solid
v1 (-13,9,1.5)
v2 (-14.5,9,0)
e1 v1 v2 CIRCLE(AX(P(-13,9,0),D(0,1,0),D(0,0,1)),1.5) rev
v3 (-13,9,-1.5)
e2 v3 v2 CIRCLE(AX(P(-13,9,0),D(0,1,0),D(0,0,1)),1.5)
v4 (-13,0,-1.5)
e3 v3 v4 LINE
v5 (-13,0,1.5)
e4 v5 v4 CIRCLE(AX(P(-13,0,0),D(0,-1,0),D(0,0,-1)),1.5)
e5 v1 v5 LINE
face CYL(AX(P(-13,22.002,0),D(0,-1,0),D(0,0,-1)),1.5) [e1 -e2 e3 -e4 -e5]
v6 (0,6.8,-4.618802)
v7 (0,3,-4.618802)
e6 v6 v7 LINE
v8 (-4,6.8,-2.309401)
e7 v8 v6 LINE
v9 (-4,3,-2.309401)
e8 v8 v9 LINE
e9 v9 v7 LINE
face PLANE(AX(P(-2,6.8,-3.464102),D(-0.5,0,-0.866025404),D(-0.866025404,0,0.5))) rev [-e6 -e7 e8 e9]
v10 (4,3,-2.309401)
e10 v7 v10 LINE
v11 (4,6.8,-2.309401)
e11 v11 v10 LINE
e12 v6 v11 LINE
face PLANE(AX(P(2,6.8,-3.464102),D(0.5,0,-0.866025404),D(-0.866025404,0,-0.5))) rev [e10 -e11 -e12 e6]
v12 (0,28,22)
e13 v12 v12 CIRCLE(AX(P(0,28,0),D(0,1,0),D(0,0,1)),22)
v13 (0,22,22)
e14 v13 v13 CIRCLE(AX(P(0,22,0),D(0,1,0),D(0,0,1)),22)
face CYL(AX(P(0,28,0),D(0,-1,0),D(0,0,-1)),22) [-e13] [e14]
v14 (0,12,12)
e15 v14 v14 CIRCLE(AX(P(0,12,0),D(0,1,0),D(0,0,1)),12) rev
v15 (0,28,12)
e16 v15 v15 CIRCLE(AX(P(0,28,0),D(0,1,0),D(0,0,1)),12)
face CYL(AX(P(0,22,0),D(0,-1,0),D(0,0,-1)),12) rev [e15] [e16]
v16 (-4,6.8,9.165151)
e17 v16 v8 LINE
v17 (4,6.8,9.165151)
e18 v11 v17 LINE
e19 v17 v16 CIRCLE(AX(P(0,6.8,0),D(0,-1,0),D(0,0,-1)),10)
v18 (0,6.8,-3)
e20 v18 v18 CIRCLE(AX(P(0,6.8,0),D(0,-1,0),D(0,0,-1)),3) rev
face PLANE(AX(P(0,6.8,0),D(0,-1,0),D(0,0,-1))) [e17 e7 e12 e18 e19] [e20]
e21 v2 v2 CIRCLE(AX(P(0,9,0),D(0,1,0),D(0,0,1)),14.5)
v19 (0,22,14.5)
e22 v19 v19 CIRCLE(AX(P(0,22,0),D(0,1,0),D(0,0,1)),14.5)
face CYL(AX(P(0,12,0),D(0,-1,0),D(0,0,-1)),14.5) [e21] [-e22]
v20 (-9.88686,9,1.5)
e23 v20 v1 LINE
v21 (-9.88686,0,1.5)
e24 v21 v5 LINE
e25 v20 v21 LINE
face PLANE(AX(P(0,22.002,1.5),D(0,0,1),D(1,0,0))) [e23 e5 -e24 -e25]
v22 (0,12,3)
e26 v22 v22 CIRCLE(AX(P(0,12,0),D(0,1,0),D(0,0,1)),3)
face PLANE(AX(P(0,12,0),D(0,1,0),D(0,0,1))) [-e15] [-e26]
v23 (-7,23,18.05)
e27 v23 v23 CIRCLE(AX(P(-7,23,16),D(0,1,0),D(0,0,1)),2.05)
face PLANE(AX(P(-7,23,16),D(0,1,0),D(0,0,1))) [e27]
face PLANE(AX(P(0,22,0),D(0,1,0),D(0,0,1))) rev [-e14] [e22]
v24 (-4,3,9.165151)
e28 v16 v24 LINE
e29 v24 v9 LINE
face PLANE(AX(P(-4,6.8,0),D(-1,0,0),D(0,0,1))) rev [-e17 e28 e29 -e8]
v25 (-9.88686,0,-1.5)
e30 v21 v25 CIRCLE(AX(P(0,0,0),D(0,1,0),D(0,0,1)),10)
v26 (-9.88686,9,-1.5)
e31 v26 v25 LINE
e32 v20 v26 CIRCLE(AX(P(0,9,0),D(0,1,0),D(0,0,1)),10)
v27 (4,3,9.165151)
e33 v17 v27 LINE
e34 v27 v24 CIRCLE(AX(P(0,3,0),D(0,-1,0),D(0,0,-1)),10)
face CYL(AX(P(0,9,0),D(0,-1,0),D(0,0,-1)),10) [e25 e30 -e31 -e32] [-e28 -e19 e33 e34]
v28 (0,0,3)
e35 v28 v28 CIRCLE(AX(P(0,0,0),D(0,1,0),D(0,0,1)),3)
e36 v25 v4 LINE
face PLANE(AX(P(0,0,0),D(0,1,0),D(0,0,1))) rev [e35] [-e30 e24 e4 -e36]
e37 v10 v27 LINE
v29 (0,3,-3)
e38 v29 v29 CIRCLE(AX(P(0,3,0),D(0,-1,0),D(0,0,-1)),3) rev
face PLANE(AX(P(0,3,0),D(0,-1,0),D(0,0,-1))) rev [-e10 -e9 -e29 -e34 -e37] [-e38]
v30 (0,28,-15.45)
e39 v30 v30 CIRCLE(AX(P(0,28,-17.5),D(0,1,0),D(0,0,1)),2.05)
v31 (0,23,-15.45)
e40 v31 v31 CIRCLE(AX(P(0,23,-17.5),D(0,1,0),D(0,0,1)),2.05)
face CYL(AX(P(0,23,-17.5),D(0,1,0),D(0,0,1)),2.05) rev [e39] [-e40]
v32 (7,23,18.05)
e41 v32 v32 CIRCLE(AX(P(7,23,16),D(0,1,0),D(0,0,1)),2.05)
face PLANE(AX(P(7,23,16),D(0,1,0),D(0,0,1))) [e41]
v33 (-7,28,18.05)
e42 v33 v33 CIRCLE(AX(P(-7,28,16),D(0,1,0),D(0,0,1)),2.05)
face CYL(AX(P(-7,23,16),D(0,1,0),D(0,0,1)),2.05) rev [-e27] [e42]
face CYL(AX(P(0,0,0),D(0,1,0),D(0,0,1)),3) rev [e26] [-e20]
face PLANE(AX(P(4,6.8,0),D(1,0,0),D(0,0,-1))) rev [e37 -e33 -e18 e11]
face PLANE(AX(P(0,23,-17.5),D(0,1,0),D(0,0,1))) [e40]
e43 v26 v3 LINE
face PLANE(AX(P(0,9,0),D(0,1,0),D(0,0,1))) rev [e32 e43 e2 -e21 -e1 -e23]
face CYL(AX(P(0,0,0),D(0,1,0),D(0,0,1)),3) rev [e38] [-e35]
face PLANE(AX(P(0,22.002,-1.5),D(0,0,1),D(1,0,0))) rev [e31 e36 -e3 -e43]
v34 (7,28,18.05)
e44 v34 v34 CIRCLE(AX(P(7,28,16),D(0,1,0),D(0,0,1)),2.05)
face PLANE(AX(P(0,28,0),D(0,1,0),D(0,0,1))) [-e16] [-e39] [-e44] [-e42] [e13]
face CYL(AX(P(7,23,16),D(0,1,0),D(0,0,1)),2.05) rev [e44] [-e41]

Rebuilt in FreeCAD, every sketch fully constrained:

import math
import FreeCAD as App
import Part
import Sketcher

V = App.Vector
Q = App.Units.Quantity

doc = App.newDocument("Part")
body = doc.addObject("PartDesign::Body", "Body")

# Sketch on XZ plane
sketch1 = doc.addObject("Sketcher::SketchObject", "Sketch")
body.addObject(sketch1)
sketch1.AttachmentSupport = (doc.XZ_Plane, [""])
sketch1.MapMode = "FlatFace"
sketch1.addGeometry(Part.Circle(V(0, 0, 0), V(0, 0, 1), 10), False)
sketch1.addConstraint([
    Sketcher.Constraint("Coincident", 0, 3, -1, 1),
    Sketcher.Constraint("Diameter", 0, 20.0),
])
pad1 = doc.addObject("PartDesign::Pad", "Pad")
body.addObject(pad1)
pad1.Profile = sketch1
pad1.Length = 9
pad1.Reversed = True

# Sketch on XZ plane
sketch2 = doc.addObject("Sketcher::SketchObject", "Sketch001")
body.addObject(sketch2)
sketch2.AttachmentSupport = (doc.XZ_Plane, [""])
sketch2.MapMode = "FlatFace"
sketch2.AttachmentOffset = App.Placement(V(0, 0, -9), App.Rotation())
sketch2.addGeometry(Part.Circle(V(0, 0, 0), V(0, 0, 1), 14), False)
sketch2.addConstraint([
    Sketcher.Constraint("Coincident", 0, 3, -1, 1),
    Sketcher.Constraint("Diameter", 0, 29.0),
])
pad2 = doc.addObject("PartDesign::Pad", "Pad001")
body.addObject(pad2)
pad2.Profile = sketch2
pad2.Length = 3
pad2.Reversed = True

# Sketch on XZ plane
sketch3 = doc.addObject("Sketcher::SketchObject", "Sketch002")
body.addObject(sketch3)
sketch3.AttachmentSupport = (doc.XZ_Plane, [""])
sketch3.MapMode = "FlatFace"
sketch3.AttachmentOffset = App.Placement(V(0, 0, -12), App.Rotation())
sketch3.addGeometry([
    Part.Circle(V(0, 0, 0), V(0, 0, 1), 14),
    Part.Circle(V(0, 0, 0), V(0, 0, 1), 12),
], False)
sketch3.addConstraint([
    Sketcher.Constraint("Coincident", 0, 3, -1, 1),
    Sketcher.Constraint("Coincident", 1, 3, -1, 1),
    Sketcher.Constraint("Diameter", 0, 29.0),
    Sketcher.Constraint("Diameter", 1, 24.0),
])
pad3 = doc.addObject("PartDesign::Pad", "Pad002")
body.addObject(pad3)
pad3.Profile = sketch3
pad3.Length = 10
pad3.Reversed = True

# Sketch on XZ plane
sketch4 = doc.addObject("Sketcher::SketchObject", "Sketch003")
body.addObject(sketch4)
sketch4.AttachmentSupport = (doc.XZ_Plane, [""])
sketch4.MapMode = "FlatFace"
sketch4.AttachmentOffset = App.Placement(V(0, 0, -12), App.Rotation())
sketch4.addGeometry(Part.Circle(V(0, 0, 0), V(0, 0, 1), 3), False)
sketch4.addConstraint([
    Sketcher.Constraint("Coincident", 0, 3, -1, 1),
    Sketcher.Constraint("Diameter", 0, 6.0),
])
pocket1 = doc.addObject("PartDesign::Pocket", "Pocket")
body.addObject(pocket1)
pocket1.Profile = sketch4
pocket1.Type = "ThroughAll"
pocket1.Reversed = True

# Sketch on XZ plane
sketch5 = doc.addObject("Sketcher::SketchObject", "Sketch004")
body.addObject(sketch5)
sketch5.AttachmentSupport = (doc.XZ_Plane, [""])
sketch5.MapMode = "FlatFace"
sketch5.addGeometry(Part.Circle(V(-13, 0, 0), V(0, 0, 1), 1.5), False)
sketch5.addConstraint([
    Sketcher.Constraint("PointOnObject", 0, 3, -1),
    Sketcher.Constraint("Diameter", 0, 3.0),
    Sketcher.Constraint("DistanceX", 0, 3, -1, 1, 13.0),
])
pad4 = doc.addObject("PartDesign::Pad", "Pad003")
body.addObject(pad4)
pad4.Profile = sketch5
pad4.Type = "UpToFirst"
pad4.Reversed = True

# Sketch on XZ plane
sketch6 = doc.addObject("Sketcher::SketchObject", "Sketch005")
body.addObject(sketch6)
sketch6.AttachmentSupport = (doc.XZ_Plane, [""])
sketch6.MapMode = "FlatFace"
sketch6.addGeometry([
    Part.ArcOfCircle(Part.Circle(V(0, 0, 0), V(0, 0, 1), 10), math.radians(171.37), math.radians(188.63)),  # 0
    Part.LineSegment(V(-9.9, 1.5, 0), V(-13, 1.5, 0)),  # 1
    Part.ArcOfCircle(Part.Circle(V(-13, 0, 0), V(0, 0, 1), 1.5), math.radians(0), math.radians(90)),  # 2
    Part.ArcOfCircle(Part.Circle(V(-13, 0, 0), V(0, 0, 1), 1.5), math.radians(-90), math.radians(0)),  # 3
    Part.LineSegment(V(-13, -1.5, 0), V(-9.9, -1.5, 0)),  # 4
], False)
sketch6.addConstraint([
    Sketcher.Constraint("Coincident", 0, 1, 1, 1),
    Sketcher.Constraint("Tangent", 1, 2, 2, 2),
    Sketcher.Constraint("Tangent", 2, 1, 3, 2),
    Sketcher.Constraint("Tangent", 3, 1, 4, 1),
    Sketcher.Constraint("Coincident", 4, 2, 0, 2),
    Sketcher.Constraint("Horizontal", 1),
    Sketcher.Constraint("Horizontal", 4),
    Sketcher.Constraint("Coincident", 0, 3, -1, 1),
    Sketcher.Constraint("Equal", 2, 3),
    Sketcher.Constraint("PointOnObject", 2, 3, -1),
    Sketcher.Constraint("PointOnObject", 2, 1, -1),
    Sketcher.Constraint("Radius", 0, 10.0),
    Sketcher.Constraint("Radius", 2, 1.5),
    Sketcher.Constraint("DistanceX", 2, 3, -1, 1, 13.0),
])
pad5 = doc.addObject("PartDesign::Pad", "Pad004")
body.addObject(pad5)
pad5.Profile = sketch6
pad5.Type = "UpToFirst"
pad5.Reversed = True

# Sketch on XZ plane
sketch7 = doc.addObject("Sketcher::SketchObject", "Sketch006")
body.addObject(sketch7)
sketch7.AttachmentSupport = (doc.XZ_Plane, [""])
sketch7.MapMode = "FlatFace"
sketch7.AttachmentOffset = App.Placement(V(0, 0, -3), App.Rotation())
sketch7.addGeometry([
    Part.LineSegment(V(-4, -2.3, 0), V(0, -4.6, 0)),  # 0
    Part.LineSegment(V(0, -4.6, 0), V(4, -2.3, 0)),  # 1
    Part.LineSegment(V(4, -2.3, 0), V(4, 9.2, 0)),  # 2
    Part.ArcOfCircle(Part.Circle(V(0, 0, 0), V(0, 0, 1), 10), math.radians(66), math.radians(114)),  # 3
    Part.LineSegment(V(-4, 9.2, 0), V(-4, -2.3, 0)),  # 4
], False)
sketch7.addConstraint([
    Sketcher.Constraint("Coincident", 0, 2, 1, 1),
    Sketcher.Constraint("Coincident", 1, 2, 2, 1),
    Sketcher.Constraint("Coincident", 2, 2, 3, 1),
    Sketcher.Constraint("Coincident", 3, 2, 4, 1),
    Sketcher.Constraint("Coincident", 4, 2, 0, 1),
    Sketcher.Constraint("Vertical", 2),
    Sketcher.Constraint("Vertical", 4),
    Sketcher.Constraint("Coincident", 3, 3, -1, 1),
    Sketcher.Constraint("Symmetric", 1, 2, 4, 2, -2),
    Sketcher.Constraint("PointOnObject", 0, 2, -2),
    Sketcher.Constraint("Radius", 3, 10.0),
    Sketcher.Constraint("Angle", 0, Q("-30 deg")),
    Sketcher.Constraint("DistanceX", -1, 1, 1, 2, 4.0),
    Sketcher.Constraint("DistanceY", 1, 2, -1, 1, 2.309401),
])
pocket2 = doc.addObject("PartDesign::Pocket", "Pocket001")
body.addObject(pocket2)
pocket2.Profile = sketch7
pocket2.Length = 3.8

# Sketch on XZ plane
sketch8 = doc.addObject("Sketcher::SketchObject", "Sketch007")
body.addObject(sketch8)
sketch8.AttachmentSupport = (doc.XZ_Plane, [""])
sketch8.MapMode = "FlatFace"
sketch8.AttachmentOffset = App.Placement(V(0, 0, -22), App.Rotation())
sketch8.addGeometry([
    Part.Circle(V(0, 0, 0), V(0, 0, 1), 22),
    Part.Circle(V(0, 0, 0), V(0, 0, 1), 12),
], False)
sketch8.addConstraint([
    Sketcher.Constraint("Coincident", 0, 3, -1, 1),
    Sketcher.Constraint("Coincident", 1, 3, -1, 1),
    Sketcher.Constraint("Diameter", 0, 44.0),
    Sketcher.Constraint("Diameter", 1, 24.0),
])
pad6 = doc.addObject("PartDesign::Pad", "Pad005")
body.addObject(pad6)
pad6.Profile = sketch8
pad6.Length = 6
pad6.Reversed = True

# Sketch on XZ plane
sketch9 = doc.addObject("Sketcher::SketchObject", "Sketch008")
body.addObject(sketch9)
sketch9.AttachmentSupport = (doc.XZ_Plane, [""])
sketch9.MapMode = "FlatFace"
sketch9.AttachmentOffset = App.Placement(V(0, 0, -28), App.Rotation())
sketch9.addGeometry([
    Part.Circle(V(0, -17.5, 0), V(0, 0, 1), 2),
    Part.Circle(V(-7, 16, 0), V(0, 0, 1), 2),
    Part.Circle(V(7, 16, 0), V(0, 0, 1), 2),
], False)
sketch9.addConstraint([
    Sketcher.Constraint("Equal", 0, 1),
    Sketcher.Constraint("Equal", 1, 2),
    Sketcher.Constraint("Symmetric", 1, 3, 2, 3, -2),
    Sketcher.Constraint("PointOnObject", 0, 3, -2),
    Sketcher.Constraint("Diameter", 0, 4.1),
    Sketcher.Constraint("DistanceX", 1, 3, -1, 1, 7.0),
    Sketcher.Constraint("DistanceY", -1, 1, 1, 3, 16.0),
    Sketcher.Constraint("DistanceY", 0, 3, -1, 1, 17.5),
])
pocket3 = doc.addObject("PartDesign::Pocket", "Pocket002")
body.addObject(pocket3)
pocket3.Profile = sketch9
pocket3.Length = 5
pocket3.Reversed = True

doc.recompute()
